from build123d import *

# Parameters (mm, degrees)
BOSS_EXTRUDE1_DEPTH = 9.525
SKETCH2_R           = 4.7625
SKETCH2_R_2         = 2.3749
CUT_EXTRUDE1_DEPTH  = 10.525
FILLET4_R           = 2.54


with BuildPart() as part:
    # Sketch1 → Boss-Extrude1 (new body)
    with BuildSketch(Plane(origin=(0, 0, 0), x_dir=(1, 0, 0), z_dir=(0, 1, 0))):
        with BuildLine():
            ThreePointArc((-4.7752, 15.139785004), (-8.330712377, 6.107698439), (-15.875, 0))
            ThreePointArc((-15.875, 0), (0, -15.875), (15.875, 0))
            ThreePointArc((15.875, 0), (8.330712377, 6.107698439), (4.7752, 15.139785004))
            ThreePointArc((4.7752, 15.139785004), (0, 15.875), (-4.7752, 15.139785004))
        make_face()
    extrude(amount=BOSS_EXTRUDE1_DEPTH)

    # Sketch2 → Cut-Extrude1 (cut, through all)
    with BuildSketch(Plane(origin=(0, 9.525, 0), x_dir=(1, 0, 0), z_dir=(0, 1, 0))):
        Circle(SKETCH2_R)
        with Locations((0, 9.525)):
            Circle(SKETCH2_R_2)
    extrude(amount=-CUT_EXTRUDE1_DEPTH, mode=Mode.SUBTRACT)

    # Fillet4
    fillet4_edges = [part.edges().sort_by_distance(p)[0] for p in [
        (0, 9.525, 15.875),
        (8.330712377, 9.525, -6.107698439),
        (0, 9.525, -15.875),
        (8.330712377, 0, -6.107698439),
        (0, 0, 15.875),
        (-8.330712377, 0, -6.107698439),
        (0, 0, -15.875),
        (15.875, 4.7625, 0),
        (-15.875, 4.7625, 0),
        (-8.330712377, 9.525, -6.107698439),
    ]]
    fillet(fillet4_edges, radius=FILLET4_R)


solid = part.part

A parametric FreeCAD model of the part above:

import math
import FreeCAD as App
import Part
import Sketcher

V = App.Vector
Q = App.Units.Quantity


def edges_at(feature, points):
    """Names of the edges that pass closest to the given points."""
    edges = feature.Shape.Edges
    near = lambda p: min(range(len(edges)), key=lambda i: edges[i].distToShape(Part.Vertex(*p))[0])
    return sorted({f"Edge{near(p) + 1}" for p in points})

doc = App.newDocument("Part")
params = doc.addObject("Spreadsheet::Sheet", "Params")
for row, (alias, value) in enumerate([
    ("sketch1_radius", "0.75 in"),
    ("sketch1_radius2", "0.625 in"),
    ("pad1_length", "0.375 in"),
    ("sketch2_diameter", "0.375 in"),
    ("sketch2_diameter2", "0.187 in"),
    ("fillet_radius", "0.1 in"),
], start=1):
    params.set(f"A{row}", alias)
    params.set(f"B{row}", "=" + value)
    params.setAlias(f"B{row}", alias)

body = doc.addObject("PartDesign::Body", "Body")

sketch1 = doc.addObject("Sketcher::SketchObject", "Sketch")
body.addObject(sketch1)
sketch1.AttachmentSupport = (doc.XZ_Plane, [""])
sketch1.MapMode = "FlatFace"
sketch1.addGeometry([
    Part.ArcOfCircle(Part.Circle(V(-23.694038, -17.371389, 0), V(0, 0, 1), 19.05), math.radians(6.727334), math.radians(65.767006)),
    Part.ArcOfCircle(Part.Circle(V(0, 0, 0), V(0, 0, 1), 15.875), math.radians(0), math.radians(180)),
    Part.ArcOfCircle(Part.Circle(V(23.694038, -17.371389, 0), V(0, 0, 1), 19.05), math.radians(114.232994), math.radians(173.272666)),
    Part.ArcOfCircle(Part.Circle(V(0, 0, 0), V(0, 0, 1), 15.875), math.radians(-107.505659), math.radians(-72.494341)),
], False)
sketch1.addConstraint([
    Sketcher.Constraint("Coincident", 0, 2, 1, 2),
    Sketcher.Constraint("Coincident", 1, 1, 2, 1),
    Sketcher.Constraint("Coincident", 2, 2, 3, 2),
    Sketcher.Constraint("Coincident", 3, 1, 0, 1),
    Sketcher.Constraint("Coincident", 1, 3, -1, 1),
    Sketcher.Constraint("Coincident", 3, 3, -1, 1),
    Sketcher.Constraint("Equal", 0, 2),
    Sketcher.Constraint("Equal", 1, 3),
    Sketcher.Constraint("Symmetric", 0, 3, 2, 3, -2),
    Sketcher.Constraint("PointOnObject", 0, 2, -1),
    Sketcher.Constraint("Radius", 0, Q("0.75 in")),
    Sketcher.Constraint("Radius", 1, Q("0.625 in")),
    Sketcher.Constraint("DistanceX", -1, 1, 2, 2, Q("0.188 in")),
])
sketch1.setExpression("Constraints[10]", "Params.sketch1_radius")
sketch1.setExpression("Constraints[11]", "Params.sketch1_radius2")
pad1 = doc.addObject("PartDesign::Pad", "Pad")
body.addObject(pad1)
pad1.Profile = sketch1
pad1.setExpression("Length", "Params.pad1_length")
pad1.Reversed = True

sketch2 = doc.addObject("Sketcher::SketchObject", "Sketch001")
body.addObject(sketch2)
sketch2.AttachmentSupport = (doc.XZ_Plane, [""])
sketch2.MapMode = "FlatFace"
sketch2.AttachmentOffset = App.Placement(V(0, 0, -0.375 * 25.4), App.Rotation())
sketch2.addGeometry([
    Part.Circle(V(0, 0, 0), V(0, 0, 1), 4.7625),
    Part.Circle(V(0, -9.525, 0), V(0, 0, 1), 2.3749),
], False)
sketch2.addConstraint([
    Sketcher.Constraint("Coincident", 0, 3, -1, 1),
    Sketcher.Constraint("PointOnObject", 1, 3, -2),
    Sketcher.Constraint("Diameter", 0, Q("0.375 in")),
    Sketcher.Constraint("Diameter", 1, Q("0.187 in")),
    Sketcher.Constraint("DistanceY", 1, 3, -1, 1, Q("0.375 in")),
])
sketch2.setExpression("Constraints[2]", "Params.sketch2_diameter")
sketch2.setExpression("Constraints[3]", "Params.sketch2_diameter2")
pocket1 = doc.addObject("PartDesign::Pocket", "Pocket")
body.addObject(pocket1)
pocket1.Profile = sketch2
pocket1.Type = "ThroughAll"
pocket1.Reversed = True
doc.recompute()

fillet = doc.addObject("PartDesign::Fillet", "Fillet")
body.addObject(fillet)
fillet.Base = (pocket1, edges_at(pocket1, [
    (0, 9.525, 15.875),
    (8.331, 9.525, -6.108),
    (0, 9.525, -15.875),
    (8.331, 0, -6.108),
    (0, 0, 15.875),
    (-8.331, 0, -6.108),
    (0, 0, -15.875),
    (15.875, 4.763, 0),
    (-15.875, 4.763, 0),
    (-8.331, 9.525, -6.108),
]))
fillet.setExpression("Radius", "Params.fillet_radius")

doc.recompute()
